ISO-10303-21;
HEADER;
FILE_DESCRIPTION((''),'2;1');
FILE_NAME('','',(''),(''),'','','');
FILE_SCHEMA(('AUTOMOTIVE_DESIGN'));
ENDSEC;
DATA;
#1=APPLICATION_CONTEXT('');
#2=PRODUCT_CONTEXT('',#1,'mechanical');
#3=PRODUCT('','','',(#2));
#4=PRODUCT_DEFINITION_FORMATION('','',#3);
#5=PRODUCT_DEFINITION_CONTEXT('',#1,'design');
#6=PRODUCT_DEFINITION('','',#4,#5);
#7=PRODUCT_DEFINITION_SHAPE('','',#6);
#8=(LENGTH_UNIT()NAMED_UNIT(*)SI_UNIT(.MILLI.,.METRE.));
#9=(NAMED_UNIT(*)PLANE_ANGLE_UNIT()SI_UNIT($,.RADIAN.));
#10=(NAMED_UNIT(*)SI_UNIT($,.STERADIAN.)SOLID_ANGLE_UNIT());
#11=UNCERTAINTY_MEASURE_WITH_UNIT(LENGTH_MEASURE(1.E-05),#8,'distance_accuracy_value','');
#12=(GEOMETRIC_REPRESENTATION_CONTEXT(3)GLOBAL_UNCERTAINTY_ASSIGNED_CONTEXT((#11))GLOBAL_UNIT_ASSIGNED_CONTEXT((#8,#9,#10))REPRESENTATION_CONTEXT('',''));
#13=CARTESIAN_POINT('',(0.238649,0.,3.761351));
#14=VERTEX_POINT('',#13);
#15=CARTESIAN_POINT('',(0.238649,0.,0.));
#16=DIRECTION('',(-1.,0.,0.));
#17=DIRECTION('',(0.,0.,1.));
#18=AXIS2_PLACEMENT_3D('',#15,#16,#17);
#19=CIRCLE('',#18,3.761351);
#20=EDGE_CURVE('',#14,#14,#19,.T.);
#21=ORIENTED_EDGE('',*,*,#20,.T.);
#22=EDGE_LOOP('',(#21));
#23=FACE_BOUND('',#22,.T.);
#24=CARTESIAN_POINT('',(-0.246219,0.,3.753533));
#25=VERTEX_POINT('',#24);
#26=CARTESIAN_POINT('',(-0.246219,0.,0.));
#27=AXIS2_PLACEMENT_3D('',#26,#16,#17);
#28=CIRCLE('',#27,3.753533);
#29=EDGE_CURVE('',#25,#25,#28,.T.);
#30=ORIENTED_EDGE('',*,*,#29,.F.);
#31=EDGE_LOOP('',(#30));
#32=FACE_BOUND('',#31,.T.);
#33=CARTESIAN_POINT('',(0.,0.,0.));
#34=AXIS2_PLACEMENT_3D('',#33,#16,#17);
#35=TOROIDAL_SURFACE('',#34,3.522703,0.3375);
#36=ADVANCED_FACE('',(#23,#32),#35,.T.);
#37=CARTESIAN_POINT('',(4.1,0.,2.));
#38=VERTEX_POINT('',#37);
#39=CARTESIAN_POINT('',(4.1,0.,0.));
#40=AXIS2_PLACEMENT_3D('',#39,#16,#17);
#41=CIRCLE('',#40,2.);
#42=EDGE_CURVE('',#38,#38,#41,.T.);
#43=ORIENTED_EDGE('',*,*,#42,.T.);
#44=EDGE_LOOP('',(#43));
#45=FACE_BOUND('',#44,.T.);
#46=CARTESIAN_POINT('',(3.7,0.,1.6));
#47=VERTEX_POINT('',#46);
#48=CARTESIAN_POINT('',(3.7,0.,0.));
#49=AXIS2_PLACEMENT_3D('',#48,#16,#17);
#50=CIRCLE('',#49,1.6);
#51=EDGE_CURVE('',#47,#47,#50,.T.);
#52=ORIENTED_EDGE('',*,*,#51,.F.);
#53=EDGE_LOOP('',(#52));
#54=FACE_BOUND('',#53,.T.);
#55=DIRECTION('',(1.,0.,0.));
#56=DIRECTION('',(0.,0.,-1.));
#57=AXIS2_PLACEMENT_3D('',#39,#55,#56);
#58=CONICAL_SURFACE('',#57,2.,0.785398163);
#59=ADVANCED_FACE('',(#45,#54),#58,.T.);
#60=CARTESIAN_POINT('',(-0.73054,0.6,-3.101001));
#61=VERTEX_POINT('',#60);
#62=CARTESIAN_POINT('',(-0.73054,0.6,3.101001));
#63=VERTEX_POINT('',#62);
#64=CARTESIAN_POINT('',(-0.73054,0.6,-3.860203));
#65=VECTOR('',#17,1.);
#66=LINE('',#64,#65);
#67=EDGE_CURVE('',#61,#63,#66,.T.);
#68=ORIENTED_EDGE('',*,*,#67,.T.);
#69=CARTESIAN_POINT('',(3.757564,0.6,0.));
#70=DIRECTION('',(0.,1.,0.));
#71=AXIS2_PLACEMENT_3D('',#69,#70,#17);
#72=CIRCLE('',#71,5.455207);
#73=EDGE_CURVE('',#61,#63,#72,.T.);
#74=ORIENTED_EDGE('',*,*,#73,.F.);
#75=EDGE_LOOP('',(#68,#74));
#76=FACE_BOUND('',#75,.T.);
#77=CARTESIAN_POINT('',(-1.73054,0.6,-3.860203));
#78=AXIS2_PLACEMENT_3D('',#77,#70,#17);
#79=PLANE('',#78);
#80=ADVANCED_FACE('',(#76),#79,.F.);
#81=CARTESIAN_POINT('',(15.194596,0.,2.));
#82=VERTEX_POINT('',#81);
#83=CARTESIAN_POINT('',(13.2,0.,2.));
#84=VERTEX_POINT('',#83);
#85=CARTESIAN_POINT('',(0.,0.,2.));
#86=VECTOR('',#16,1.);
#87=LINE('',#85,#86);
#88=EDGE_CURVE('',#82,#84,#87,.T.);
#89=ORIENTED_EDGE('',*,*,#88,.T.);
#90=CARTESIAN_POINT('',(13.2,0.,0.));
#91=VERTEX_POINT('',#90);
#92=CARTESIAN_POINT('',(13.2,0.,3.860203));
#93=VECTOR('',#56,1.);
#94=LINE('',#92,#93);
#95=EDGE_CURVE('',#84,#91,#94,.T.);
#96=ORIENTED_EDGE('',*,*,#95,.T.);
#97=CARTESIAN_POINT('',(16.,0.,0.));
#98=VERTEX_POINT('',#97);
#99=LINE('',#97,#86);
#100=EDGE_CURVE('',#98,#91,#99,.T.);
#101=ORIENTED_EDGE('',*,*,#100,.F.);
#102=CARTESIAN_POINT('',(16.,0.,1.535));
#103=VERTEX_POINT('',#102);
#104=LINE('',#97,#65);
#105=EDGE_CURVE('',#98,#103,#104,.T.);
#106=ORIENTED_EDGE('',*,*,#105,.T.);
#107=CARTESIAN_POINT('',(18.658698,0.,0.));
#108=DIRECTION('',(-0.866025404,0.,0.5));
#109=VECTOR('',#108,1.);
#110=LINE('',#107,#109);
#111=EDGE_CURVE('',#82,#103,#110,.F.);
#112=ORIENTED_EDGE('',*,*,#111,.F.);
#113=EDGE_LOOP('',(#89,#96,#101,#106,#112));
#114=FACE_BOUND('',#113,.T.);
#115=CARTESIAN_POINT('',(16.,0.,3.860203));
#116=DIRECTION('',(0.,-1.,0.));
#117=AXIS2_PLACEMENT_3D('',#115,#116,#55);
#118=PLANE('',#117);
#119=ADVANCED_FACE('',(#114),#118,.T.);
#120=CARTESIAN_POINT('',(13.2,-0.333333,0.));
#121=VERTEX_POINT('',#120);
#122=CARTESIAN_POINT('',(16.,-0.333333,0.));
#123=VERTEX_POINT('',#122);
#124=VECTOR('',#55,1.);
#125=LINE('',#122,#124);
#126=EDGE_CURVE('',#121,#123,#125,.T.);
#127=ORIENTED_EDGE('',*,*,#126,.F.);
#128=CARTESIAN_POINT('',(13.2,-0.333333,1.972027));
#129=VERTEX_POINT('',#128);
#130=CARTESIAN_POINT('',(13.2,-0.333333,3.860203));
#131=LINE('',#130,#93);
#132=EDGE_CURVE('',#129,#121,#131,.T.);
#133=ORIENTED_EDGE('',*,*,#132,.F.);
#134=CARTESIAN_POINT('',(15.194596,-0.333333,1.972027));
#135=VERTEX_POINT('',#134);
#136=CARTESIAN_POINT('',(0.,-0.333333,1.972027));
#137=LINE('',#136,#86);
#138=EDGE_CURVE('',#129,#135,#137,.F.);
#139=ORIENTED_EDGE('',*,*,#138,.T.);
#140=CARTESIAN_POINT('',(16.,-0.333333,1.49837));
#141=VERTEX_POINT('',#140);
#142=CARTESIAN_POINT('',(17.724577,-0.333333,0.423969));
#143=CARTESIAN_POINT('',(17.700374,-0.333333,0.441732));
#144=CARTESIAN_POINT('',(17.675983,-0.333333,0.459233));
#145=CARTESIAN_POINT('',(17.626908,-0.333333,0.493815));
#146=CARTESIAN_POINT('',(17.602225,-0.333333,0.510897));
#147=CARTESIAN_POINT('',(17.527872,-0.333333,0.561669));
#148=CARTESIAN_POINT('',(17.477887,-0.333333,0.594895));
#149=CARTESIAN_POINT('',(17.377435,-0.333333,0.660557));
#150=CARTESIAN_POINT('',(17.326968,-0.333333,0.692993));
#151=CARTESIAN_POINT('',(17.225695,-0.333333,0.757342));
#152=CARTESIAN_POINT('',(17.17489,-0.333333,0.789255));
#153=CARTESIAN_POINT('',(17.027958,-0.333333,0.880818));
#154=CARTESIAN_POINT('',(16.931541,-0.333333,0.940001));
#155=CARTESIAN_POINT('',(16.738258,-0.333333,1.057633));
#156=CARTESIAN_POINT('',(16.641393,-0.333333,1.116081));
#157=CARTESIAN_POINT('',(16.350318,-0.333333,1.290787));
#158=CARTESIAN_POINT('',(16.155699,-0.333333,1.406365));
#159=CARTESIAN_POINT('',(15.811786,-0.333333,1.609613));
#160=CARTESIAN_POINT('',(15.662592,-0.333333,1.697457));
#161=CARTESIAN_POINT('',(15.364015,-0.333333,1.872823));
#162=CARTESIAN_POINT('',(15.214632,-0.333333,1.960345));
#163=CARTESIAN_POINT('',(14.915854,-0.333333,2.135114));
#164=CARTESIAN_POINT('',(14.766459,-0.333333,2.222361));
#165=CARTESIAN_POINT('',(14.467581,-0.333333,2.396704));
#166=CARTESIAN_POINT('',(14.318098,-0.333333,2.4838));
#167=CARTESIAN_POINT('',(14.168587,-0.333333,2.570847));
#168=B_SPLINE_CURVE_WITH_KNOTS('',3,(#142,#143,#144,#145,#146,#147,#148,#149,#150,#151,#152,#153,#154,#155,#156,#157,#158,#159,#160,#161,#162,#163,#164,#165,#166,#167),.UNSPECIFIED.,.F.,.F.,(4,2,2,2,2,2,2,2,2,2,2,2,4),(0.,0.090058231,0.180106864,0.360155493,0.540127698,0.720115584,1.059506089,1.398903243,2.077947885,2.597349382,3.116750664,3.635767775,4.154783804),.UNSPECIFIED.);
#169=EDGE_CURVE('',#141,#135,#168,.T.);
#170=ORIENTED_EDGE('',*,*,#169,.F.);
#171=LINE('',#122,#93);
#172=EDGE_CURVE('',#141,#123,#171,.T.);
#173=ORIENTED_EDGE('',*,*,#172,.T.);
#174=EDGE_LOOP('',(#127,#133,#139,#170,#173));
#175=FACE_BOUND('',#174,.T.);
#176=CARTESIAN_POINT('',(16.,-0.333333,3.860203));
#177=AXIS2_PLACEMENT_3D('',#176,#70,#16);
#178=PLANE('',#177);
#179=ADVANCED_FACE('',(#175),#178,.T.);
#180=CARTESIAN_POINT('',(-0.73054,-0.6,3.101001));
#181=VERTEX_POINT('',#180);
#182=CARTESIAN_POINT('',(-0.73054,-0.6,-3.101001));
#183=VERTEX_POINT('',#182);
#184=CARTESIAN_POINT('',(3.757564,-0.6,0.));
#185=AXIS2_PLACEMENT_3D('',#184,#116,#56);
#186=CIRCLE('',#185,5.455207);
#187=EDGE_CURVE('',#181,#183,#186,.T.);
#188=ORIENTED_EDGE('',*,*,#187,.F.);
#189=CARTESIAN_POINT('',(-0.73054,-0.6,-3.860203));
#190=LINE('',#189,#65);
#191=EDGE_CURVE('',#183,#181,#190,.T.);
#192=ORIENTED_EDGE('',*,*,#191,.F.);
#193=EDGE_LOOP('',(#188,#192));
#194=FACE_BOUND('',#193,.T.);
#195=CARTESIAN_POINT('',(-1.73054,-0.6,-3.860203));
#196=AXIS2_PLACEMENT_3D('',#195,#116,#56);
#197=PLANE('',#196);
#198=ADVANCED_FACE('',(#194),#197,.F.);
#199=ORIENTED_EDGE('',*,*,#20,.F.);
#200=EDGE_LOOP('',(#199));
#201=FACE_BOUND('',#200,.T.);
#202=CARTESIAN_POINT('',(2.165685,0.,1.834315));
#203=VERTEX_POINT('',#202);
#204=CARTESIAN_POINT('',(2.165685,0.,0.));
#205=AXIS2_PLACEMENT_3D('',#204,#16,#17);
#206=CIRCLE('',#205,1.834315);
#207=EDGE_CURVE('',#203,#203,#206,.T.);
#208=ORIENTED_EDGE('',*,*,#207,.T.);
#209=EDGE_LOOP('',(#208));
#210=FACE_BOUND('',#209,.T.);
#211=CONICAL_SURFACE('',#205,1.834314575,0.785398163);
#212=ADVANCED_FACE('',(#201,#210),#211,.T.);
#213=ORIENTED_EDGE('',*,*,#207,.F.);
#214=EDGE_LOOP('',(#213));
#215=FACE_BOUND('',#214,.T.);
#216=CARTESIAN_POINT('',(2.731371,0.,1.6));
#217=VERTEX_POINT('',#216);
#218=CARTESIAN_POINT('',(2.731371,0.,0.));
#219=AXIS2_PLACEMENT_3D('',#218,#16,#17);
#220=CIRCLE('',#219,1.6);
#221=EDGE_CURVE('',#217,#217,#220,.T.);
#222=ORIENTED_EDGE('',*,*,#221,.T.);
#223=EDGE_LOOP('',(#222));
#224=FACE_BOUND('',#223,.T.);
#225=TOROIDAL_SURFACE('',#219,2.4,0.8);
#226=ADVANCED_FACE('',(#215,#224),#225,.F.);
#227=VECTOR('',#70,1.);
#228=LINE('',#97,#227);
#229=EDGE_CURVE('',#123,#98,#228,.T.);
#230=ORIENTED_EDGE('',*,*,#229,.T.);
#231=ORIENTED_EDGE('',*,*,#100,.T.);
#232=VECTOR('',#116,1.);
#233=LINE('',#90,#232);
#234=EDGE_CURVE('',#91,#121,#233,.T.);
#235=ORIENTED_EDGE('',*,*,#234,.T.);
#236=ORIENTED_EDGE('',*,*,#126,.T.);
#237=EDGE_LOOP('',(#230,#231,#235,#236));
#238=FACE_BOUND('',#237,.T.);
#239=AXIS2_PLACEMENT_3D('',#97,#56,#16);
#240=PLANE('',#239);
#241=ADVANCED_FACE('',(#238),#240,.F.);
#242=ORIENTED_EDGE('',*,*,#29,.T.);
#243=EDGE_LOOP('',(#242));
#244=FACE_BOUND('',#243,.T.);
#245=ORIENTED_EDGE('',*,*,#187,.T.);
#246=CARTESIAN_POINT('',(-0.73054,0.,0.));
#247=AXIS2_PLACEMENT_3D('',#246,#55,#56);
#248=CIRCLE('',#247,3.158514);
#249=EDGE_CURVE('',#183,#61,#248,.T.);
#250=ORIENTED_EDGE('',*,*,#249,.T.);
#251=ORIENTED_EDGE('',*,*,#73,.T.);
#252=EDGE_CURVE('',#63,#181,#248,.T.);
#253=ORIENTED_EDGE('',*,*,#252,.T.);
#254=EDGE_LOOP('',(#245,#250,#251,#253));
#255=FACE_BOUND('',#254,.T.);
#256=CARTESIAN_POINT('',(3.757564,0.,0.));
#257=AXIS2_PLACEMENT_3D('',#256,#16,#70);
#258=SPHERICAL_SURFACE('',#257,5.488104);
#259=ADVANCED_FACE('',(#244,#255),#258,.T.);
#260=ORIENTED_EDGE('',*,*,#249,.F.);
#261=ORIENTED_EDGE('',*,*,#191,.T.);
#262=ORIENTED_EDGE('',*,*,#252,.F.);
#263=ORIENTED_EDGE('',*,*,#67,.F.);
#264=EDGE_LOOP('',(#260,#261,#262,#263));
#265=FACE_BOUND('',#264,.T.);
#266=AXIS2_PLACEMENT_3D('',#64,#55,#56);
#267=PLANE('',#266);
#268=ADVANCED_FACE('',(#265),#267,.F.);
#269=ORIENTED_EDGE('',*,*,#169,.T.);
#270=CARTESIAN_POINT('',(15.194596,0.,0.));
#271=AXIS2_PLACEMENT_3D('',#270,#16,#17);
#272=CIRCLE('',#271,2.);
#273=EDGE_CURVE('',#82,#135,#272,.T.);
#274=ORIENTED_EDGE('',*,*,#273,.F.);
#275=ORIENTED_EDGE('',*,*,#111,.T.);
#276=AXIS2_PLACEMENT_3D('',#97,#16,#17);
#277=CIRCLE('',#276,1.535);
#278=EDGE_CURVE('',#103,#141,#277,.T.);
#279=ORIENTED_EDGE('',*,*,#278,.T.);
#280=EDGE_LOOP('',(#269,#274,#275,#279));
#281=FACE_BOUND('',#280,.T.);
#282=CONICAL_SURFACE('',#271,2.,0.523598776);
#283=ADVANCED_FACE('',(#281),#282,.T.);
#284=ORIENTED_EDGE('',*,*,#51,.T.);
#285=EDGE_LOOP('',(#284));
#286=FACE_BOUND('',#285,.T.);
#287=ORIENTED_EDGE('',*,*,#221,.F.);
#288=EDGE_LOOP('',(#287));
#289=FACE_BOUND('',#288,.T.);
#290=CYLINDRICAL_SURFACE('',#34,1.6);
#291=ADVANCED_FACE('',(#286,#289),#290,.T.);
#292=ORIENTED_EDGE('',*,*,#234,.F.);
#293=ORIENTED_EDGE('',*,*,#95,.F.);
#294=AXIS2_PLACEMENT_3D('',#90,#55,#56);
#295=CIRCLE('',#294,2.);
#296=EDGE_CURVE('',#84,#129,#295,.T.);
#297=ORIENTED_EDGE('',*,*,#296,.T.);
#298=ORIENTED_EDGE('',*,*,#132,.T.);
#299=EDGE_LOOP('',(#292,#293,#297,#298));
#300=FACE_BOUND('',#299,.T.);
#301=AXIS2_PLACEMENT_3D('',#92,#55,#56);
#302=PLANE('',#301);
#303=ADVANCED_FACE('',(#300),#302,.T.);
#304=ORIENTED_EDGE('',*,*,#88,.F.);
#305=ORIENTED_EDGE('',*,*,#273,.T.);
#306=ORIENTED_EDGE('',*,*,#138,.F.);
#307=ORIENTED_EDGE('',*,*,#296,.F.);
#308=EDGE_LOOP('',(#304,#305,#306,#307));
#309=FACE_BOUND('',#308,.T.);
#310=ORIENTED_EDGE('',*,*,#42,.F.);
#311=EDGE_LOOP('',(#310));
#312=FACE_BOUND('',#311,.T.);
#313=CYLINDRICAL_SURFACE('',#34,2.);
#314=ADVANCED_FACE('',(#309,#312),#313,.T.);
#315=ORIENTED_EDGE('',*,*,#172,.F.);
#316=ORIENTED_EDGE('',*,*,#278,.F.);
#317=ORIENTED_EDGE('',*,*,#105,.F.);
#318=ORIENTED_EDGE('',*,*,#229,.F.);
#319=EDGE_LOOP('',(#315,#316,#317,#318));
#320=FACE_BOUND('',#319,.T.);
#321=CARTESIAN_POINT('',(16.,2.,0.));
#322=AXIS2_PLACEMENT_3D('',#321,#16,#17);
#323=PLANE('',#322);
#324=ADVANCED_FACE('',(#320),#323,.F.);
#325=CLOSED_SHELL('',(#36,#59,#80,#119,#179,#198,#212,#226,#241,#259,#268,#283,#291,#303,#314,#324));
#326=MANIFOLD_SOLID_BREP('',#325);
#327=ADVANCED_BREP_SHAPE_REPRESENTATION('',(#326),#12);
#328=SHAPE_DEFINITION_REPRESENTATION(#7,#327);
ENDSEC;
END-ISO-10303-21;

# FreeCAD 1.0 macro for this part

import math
import FreeCAD as App
import Part
import Sketcher
Q = App.Units.Quantity


def add_polygon(sketch, points):
    """Adds a closed chain of lines whose ends are joined by coincident constraints."""
    first, n = sketch.GeometryCount, len(points)
    for a, b in zip(points, points[1:] + points[:1]):
        sketch.addGeometry(Part.LineSegment(App.Vector(*a, 0), App.Vector(*b, 0)), False)
    for i in range(n):
        sketch.addConstraint(Sketcher.Constraint("Coincident", first + i, 2, first + (i + 1) % n, 1))

doc = App.newDocument("Part")
body = doc.addObject("PartDesign::Body", "Body")

sketch1 = body.newObject("Sketcher::SketchObject", "Sketch")
sketch1.AttachmentSupport = (doc.getObject("XY_Plane"), [""])
sketch1.MapMode = "FlatFace"
sketch1.addGeometry([
    Part.LineSegment(App.Vector(2.165685, 1.834315, 0), App.Vector(0.238649, 3.761351, 0)),
    Part.ArcOfCircle(Part.Circle(App.Vector(0, 3.522703, 0), App.Vector(0, 0, 1), 0.3375), math.radians(45), math.radians(136.84772)),
    Part.ArcOfCircle(Part.Circle(App.Vector(3.757564, 0, 0), App.Vector(0, 0, 1), 5.488104), math.radians(136.847719), math.radians(180)),
    Part.LineSegment(App.Vector(-1.73054, 0, 0), App.Vector(16, 0, 0)),
    Part.LineSegment(App.Vector(16, 0, 0), App.Vector(16, 2, 0)),
    Part.LineSegment(App.Vector(16, 2, 0), App.Vector(4.1, 2, 0)),
    Part.LineSegment(App.Vector(4.1, 2, 0), App.Vector(3.7, 1.6, 0)),
    Part.LineSegment(App.Vector(3.7, 1.6, 0), App.Vector(2.731371, 1.6, 0)),
    Part.ArcOfCircle(Part.Circle(App.Vector(2.731371, 2.4, 0), App.Vector(0, 0, 1), 0.8), math.radians(-135), math.radians(-90)),
], False)
sketch1.addConstraint([
    Sketcher.Constraint("Tangent", 0, 2, 1, 1),
    Sketcher.Constraint("Tangent", 1, 2, 2, 1),
    Sketcher.Constraint("Coincident", 2, 2, 3, 1),
    Sketcher.Constraint("Coincident", 3, 2, 4, 1),
    Sketcher.Constraint("Coincident", 4, 2, 5, 1),
    Sketcher.Constraint("Coincident", 5, 2, 6, 1),
    Sketcher.Constraint("Coincident", 6, 2, 7, 1),
    Sketcher.Constraint("Tangent", 7, 2, 8, 2),
    Sketcher.Constraint("Tangent", 8, 1, 0, 1),
    Sketcher.Constraint("Horizontal", 3),
    Sketcher.Constraint("Vertical", 4),
    Sketcher.Constraint("Horizontal", 5),
    Sketcher.Constraint("Horizontal", 7),
    Sketcher.Constraint("PointOnObject", 1, 3, -2),
    Sketcher.Constraint("PointOnObject", 2, 3, -1),
    Sketcher.Constraint("PointOnObject", 2, 2, -1),
    Sketcher.Constraint("Perpendicular", 0, 6),
    Sketcher.Constraint("Radius", 8, Q("0.8 mm")),
    Sketcher.Constraint("DistanceY", 4, 1, 4, 2, Q("2 mm")),
    Sketcher.Constraint("Angle", 0, Q("135 deg")),
    Sketcher.Constraint("DistanceX", 5, 2, 5, 1, Q("11.9 mm")),
    Sketcher.Constraint("DistanceX", -1, 1, 3, 2, Q("16 mm")),
    Sketcher.Constraint("DistanceY", -1, 1, 8, 3, Q("2.4 mm")),
    Sketcher.Constraint("Radius", 1, Q("0.3375 mm")),
    Sketcher.Constraint("Radius", 2, Q("5.488104 mm")),
    Sketcher.Constraint("DistanceX", 3, 1, 3, 2, Q("17.73054 mm")),
])
revolution = body.newObject("PartDesign::Revolution", "Revolution")
revolution.Profile = sketch1
revolution.ReferenceAxis = (sketch1, ["H_Axis"])
revolution.Angle = 360

sketch2 = body.newObject("Sketcher::SketchObject", "Sketch001")
sketch2.AttachmentSupport = (doc.getObject("XY_Plane"), [""])
sketch2.MapMode = "FlatFace"
add_polygon(sketch2, [(-1.73054, 0.6), (-1.73054, -0.6), (-0.73054, -0.6), (-0.73054, 0.6)])
sketch2.addConstraint([
    Sketcher.Constraint("Vertical", 0),
    Sketcher.Constraint("Horizontal", 1),
    Sketcher.Constraint("Vertical", 2),
    Sketcher.Constraint("Horizontal", 3),
    Sketcher.Constraint("DistanceX", 1, 1, 1, 2, Q("1 mm")),
    Sketcher.Constraint("DistanceY", 0, 2, 0, 1, Q("1.2 mm")),
    Sketcher.Constraint("DistanceY", 0, 2, -1, 1, Q("0.6 mm")),
    Sketcher.Constraint("DistanceX", 0, 2, -1, 1, Q("1.73054 mm")),
])
pocket1 = body.newObject("PartDesign::Pocket", "Pocket")
pocket1.Profile = sketch2
pocket1.Type = "ThroughAll"
pocket1.Midplane = True

sketch3 = body.newObject("Sketcher::SketchObject", "Sketch002")
sketch3.AttachmentSupport = (doc.getObject("XY_Plane"), [""])
sketch3.MapMode = "FlatFace"
add_polygon(sketch3, [(16, 0), (16.508, 0), (16.508, 2.508), (15.194596, 2.508), (15.194596, 2), (16, 1.535)])
sketch3.addConstraint([
    Sketcher.Constraint("Horizontal", 0),
    Sketcher.Constraint("Vertical", 1),
    Sketcher.Constraint("Horizontal", 2),
    Sketcher.Constraint("Vertical", 3),
    Sketcher.Constraint("Vertical", 5),
    Sketcher.Constraint("PointOnObject", 0, 2, -1),
    Sketcher.Constraint("Equal", 0, 3),
    Sketcher.Constraint("Angle", 4, Q("-30 deg")),
    Sketcher.Constraint("DistanceY", -1, 1, 3, 2, Q("2 mm")),
    Sketcher.Constraint("DistanceX", -1, 1, 4, 2, Q("16 mm")),
    Sketcher.Constraint("Distance", 4, Q("0.93 mm")),
    Sketcher.Constraint("DistanceX", 0, 1, 0, 2, Q("0.508 mm")),
])
groove = body.newObject("PartDesign::Groove", "Groove")
groove.Profile = sketch3
groove.ReferenceAxis = (sketch3, ["H_Axis"])
groove.Angle = 360

sketch4 = body.newObject("Sketcher::SketchObject", "Sketch003")
sketch4.AttachmentSupport = (doc.getObject("XY_Plane"), [""])
sketch4.MapMode = "FlatFace"
add_polygon(sketch4, [(13.2, 0), (13.2, -0.333333), (16, -0.333333), (16, 0)])
sketch4.addConstraint([
    Sketcher.Constraint("Vertical", 0),
    Sketcher.Constraint("Horizontal", 1),
    Sketcher.Constraint("Vertical", 2),
    Sketcher.Constraint("Horizontal", 3),
    Sketcher.Constraint("PointOnObject", 2, 2, -1),
    Sketcher.Constraint("DistanceX", 1, 1, 1, 2, Q("2.8 mm")),
    Sketcher.Constraint("DistanceX", -1, 1, 1, 2, Q("16 mm")),
    Sketcher.Constraint("DistanceY", 0, 2, 0, 1, Q("0.333333 mm")),
])
pocket2 = body.newObject("PartDesign::Pocket", "Pocket001")
pocket2.Profile = sketch4
pocket2.Type = "ThroughAll"
pocket2.Reversed = True

doc.recompute()
